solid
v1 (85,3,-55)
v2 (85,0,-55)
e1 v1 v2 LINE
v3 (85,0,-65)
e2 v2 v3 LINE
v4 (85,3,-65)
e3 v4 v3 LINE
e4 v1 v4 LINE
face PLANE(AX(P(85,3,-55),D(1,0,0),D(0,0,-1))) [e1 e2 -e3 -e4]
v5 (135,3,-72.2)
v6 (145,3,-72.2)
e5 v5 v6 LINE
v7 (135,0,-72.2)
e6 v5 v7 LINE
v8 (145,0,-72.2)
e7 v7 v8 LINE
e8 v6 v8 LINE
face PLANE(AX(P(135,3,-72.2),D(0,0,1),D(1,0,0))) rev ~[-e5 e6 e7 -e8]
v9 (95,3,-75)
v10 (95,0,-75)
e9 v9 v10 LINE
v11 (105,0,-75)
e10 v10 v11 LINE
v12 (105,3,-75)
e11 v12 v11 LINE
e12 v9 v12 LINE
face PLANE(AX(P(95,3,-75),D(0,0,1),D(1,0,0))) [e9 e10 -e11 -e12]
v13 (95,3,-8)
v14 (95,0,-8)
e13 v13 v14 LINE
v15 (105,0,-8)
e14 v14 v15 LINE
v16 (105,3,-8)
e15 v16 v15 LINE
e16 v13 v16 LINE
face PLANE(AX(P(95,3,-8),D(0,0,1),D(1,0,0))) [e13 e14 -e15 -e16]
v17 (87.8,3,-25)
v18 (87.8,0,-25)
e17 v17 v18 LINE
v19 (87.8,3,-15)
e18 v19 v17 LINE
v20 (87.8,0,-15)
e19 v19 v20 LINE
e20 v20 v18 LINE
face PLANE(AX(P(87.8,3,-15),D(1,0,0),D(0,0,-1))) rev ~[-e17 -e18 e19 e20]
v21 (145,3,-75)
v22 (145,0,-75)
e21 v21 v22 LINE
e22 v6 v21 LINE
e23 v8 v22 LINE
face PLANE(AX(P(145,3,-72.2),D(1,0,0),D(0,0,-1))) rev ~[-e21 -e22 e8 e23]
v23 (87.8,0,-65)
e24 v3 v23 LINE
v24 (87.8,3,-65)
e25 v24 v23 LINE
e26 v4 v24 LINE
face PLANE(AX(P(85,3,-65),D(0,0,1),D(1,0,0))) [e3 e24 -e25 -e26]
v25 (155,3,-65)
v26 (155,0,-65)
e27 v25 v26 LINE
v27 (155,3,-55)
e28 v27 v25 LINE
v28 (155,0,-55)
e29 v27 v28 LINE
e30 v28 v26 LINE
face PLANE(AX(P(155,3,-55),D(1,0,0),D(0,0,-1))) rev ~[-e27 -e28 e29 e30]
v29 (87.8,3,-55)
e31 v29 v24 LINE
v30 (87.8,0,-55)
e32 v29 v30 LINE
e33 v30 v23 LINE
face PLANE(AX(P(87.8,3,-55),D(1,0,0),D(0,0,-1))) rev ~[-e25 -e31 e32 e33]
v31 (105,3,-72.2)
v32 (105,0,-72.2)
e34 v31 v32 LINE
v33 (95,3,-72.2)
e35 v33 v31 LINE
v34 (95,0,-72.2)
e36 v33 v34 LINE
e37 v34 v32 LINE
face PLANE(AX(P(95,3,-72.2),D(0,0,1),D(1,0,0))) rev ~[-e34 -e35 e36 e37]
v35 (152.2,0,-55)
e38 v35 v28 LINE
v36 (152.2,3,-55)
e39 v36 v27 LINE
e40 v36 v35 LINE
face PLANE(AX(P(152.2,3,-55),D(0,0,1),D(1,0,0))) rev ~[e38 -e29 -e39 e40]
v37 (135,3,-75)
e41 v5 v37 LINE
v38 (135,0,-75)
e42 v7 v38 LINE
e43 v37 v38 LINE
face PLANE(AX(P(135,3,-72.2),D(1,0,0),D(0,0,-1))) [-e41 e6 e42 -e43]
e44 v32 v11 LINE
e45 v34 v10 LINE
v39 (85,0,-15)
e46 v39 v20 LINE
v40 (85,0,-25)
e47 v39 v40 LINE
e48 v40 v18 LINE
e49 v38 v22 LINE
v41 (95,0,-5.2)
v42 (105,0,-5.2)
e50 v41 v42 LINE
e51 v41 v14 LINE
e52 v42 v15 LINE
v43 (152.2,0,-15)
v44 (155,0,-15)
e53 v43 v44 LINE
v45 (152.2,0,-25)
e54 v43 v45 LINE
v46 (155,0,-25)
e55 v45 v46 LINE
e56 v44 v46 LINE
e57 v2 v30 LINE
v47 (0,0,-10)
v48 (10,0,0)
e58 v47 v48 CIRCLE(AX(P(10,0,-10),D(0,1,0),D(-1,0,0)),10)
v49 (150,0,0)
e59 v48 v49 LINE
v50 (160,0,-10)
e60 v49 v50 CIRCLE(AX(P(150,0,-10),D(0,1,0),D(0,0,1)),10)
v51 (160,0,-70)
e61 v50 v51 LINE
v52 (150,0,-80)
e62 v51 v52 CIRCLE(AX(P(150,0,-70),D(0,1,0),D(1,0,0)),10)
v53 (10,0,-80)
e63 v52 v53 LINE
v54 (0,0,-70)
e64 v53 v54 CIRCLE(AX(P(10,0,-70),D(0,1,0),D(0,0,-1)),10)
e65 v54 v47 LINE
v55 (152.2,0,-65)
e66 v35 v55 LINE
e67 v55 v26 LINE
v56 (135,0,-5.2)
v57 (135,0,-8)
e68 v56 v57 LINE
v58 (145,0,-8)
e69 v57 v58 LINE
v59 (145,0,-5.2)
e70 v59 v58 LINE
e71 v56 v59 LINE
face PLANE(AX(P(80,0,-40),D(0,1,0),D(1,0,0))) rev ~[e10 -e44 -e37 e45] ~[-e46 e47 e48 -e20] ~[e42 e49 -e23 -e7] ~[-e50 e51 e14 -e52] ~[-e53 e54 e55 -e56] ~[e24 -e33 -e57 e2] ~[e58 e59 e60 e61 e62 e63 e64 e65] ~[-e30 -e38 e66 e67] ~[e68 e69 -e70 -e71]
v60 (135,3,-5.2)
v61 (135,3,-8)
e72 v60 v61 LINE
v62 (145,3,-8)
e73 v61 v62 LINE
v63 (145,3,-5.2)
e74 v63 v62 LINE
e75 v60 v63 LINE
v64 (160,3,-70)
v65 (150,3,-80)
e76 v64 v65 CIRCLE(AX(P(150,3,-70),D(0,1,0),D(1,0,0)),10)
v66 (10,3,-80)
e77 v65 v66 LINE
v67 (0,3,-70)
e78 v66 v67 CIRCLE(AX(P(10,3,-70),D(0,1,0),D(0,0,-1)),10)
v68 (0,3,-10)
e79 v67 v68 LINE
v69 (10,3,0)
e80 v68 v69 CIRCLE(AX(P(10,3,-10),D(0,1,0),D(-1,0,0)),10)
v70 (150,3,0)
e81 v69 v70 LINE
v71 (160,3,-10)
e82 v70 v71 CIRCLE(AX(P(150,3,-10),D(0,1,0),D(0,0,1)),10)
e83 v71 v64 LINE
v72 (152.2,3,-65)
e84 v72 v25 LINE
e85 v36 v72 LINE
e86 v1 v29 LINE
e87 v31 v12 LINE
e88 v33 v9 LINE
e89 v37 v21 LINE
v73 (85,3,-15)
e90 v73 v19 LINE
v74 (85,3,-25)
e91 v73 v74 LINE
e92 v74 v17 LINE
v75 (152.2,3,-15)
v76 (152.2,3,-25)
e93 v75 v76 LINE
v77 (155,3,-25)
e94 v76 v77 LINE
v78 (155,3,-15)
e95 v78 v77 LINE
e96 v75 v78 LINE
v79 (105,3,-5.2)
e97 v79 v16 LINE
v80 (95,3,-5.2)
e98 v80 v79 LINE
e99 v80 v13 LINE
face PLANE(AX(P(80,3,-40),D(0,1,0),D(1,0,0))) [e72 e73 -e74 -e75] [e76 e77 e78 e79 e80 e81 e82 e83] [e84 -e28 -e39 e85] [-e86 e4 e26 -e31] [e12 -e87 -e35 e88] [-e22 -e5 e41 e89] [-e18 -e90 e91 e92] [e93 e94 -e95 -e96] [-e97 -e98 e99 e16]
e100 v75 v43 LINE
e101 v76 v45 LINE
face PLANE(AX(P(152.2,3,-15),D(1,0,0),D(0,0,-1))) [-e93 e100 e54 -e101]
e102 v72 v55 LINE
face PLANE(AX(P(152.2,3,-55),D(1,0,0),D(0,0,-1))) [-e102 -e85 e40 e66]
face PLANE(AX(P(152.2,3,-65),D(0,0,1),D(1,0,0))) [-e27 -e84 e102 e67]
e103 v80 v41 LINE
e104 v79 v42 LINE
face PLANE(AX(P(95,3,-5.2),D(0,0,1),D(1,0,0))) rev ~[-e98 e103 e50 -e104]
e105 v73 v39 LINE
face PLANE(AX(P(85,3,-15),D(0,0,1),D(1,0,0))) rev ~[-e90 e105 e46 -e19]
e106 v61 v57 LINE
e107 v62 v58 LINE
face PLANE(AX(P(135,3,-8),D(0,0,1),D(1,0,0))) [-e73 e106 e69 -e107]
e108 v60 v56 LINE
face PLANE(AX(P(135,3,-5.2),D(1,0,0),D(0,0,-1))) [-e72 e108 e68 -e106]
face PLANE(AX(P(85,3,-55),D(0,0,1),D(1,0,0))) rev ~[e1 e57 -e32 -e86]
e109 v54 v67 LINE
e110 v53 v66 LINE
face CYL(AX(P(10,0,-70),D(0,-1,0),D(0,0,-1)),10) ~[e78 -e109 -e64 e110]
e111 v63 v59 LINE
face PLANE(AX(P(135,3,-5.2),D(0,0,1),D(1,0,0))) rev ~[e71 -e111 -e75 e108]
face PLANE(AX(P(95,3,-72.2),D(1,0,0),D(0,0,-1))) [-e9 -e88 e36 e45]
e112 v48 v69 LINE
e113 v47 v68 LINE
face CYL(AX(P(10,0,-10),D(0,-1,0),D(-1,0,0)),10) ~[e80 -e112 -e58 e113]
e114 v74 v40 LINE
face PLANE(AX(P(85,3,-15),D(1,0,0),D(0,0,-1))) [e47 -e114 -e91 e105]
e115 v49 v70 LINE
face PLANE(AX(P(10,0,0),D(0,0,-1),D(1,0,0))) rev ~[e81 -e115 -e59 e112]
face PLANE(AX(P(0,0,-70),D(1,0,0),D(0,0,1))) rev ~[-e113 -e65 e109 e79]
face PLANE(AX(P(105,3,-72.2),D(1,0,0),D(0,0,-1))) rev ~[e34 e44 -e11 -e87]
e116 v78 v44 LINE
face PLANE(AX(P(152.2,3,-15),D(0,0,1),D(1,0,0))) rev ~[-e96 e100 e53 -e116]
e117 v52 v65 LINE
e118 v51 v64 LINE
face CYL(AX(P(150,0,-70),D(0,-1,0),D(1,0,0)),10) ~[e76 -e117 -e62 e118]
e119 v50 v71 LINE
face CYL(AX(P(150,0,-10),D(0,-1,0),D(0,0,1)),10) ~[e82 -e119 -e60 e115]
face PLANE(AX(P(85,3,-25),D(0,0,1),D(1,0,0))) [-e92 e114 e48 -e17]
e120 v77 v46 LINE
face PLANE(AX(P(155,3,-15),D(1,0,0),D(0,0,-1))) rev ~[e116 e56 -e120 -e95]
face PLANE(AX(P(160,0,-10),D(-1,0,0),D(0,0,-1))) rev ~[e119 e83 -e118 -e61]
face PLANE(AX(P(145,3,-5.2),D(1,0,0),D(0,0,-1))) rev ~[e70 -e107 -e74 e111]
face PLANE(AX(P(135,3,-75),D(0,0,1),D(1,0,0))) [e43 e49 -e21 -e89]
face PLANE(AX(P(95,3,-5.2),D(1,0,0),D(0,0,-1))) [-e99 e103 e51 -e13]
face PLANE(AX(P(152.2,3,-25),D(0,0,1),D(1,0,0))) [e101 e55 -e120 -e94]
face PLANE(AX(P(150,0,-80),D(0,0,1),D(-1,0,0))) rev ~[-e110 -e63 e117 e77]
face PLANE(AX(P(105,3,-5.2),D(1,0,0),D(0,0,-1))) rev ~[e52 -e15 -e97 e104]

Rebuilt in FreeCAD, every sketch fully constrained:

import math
import FreeCAD as App
import Part
import Sketcher
Q = App.Units.Quantity

doc = App.newDocument("Part")
body = doc.addObject("PartDesign::Body", "Body")

# Sketch on XZ plane
sketch1 = body.newObject("Sketcher::SketchObject", "Sketch")
sketch1.AttachmentSupport = (doc.getObject("XZ_Plane"), [""])
sketch1.MapMode = "FlatFace"
sketch1.addGeometry(Part.LineSegment(App.Vector(10, 0, 0), App.Vector(150, 0, 0)), False)
sketch1.addGeometry(Part.ArcOfCircle(Part.Circle(App.Vector(150, -10, 0), App.Vector(0, 0, 1), 10), math.radians(0), math.radians(90)), False)
sketch1.addGeometry(Part.LineSegment(App.Vector(160, -10, 0), App.Vector(160, -70, 0)), False)
sketch1.addGeometry(Part.ArcOfCircle(Part.Circle(App.Vector(150, -70, 0), App.Vector(0, 0, 1), 10), math.radians(-90), math.radians(0)), False)
sketch1.addGeometry(Part.LineSegment(App.Vector(150, -80, 0), App.Vector(10, -80, 0)), False)
sketch1.addGeometry(Part.ArcOfCircle(Part.Circle(App.Vector(10, -70, 0), App.Vector(0, 0, 1), 10), math.radians(180), math.radians(270)), False)
sketch1.addGeometry(Part.LineSegment(App.Vector(0, -70, 0), App.Vector(0, -10, 0)), False)
sketch1.addGeometry(Part.ArcOfCircle(Part.Circle(App.Vector(10, -10, 0), App.Vector(0, 0, 1), 10), math.radians(90), math.radians(180)), False)
sketch1.addConstraint(Sketcher.Constraint("Tangent", 0, 2, 1, 2))
sketch1.addConstraint(Sketcher.Constraint("Tangent", 1, 1, 2, 1))
sketch1.addConstraint(Sketcher.Constraint("Tangent", 2, 2, 3, 2))
sketch1.addConstraint(Sketcher.Constraint("Tangent", 3, 1, 4, 1))
sketch1.addConstraint(Sketcher.Constraint("Tangent", 4, 2, 5, 2))
sketch1.addConstraint(Sketcher.Constraint("Tangent", 5, 1, 6, 1))
sketch1.addConstraint(Sketcher.Constraint("Tangent", 6, 2, 7, 2))
sketch1.addConstraint(Sketcher.Constraint("Tangent", 7, 1, 0, 1))
sketch1.addConstraint(Sketcher.Constraint("Horizontal", 0))
sketch1.addConstraint(Sketcher.Constraint("Vertical", 2))
sketch1.addConstraint(Sketcher.Constraint("Horizontal", 4))
sketch1.addConstraint(Sketcher.Constraint("Vertical", 6))
sketch1.addConstraint(Sketcher.Constraint("Equal", 1, 3))
sketch1.addConstraint(Sketcher.Constraint("Equal", 3, 5))
sketch1.addConstraint(Sketcher.Constraint("Equal", 5, 7))
sketch1.addConstraint(Sketcher.Constraint("PointOnObject", 0, 2, -1))
sketch1.addConstraint(Sketcher.Constraint("PointOnObject", 5, 1, -2))
sketch1.addConstraint(Sketcher.Constraint("Radius", 1, Q("10 mm")))
sketch1.addConstraint(Sketcher.Constraint("DistanceX", 0, 1, 0, 2, Q("140 mm")))
sketch1.addConstraint(Sketcher.Constraint("DistanceY", 2, 2, 2, 1, Q("60 mm")))
pad1 = body.newObject("PartDesign::Pad", "Pad")
pad1.Profile = sketch1
pad1.Length = 3
pad1.Reversed = True

# Sketch on XZ plane
sketch2 = body.newObject("Sketcher::SketchObject", "Sketch001")
sketch2.AttachmentSupport = (doc.getObject("XZ_Plane"), [""])
sketch2.MapMode = "FlatFace"
sketch2.AttachmentOffset = App.Placement(App.Vector(0, 0, -3), App.Rotation())
sketch2.addGeometry(Part.LineSegment(App.Vector(135, -75, 0), App.Vector(135, -72.2, 0)), False)
sketch2.addGeometry(Part.LineSegment(App.Vector(135, -72.2, 0), App.Vector(145, -72.2, 0)), False)
sketch2.addGeometry(Part.LineSegment(App.Vector(145, -72.2, 0), App.Vector(145, -75, 0)), False)
sketch2.addGeometry(Part.LineSegment(App.Vector(145, -75, 0), App.Vector(135, -75, 0)), False)
sketch2.addGeometry(Part.LineSegment(App.Vector(95, -75, 0), App.Vector(95, -72.2, 0)), False)
sketch2.addGeometry(Part.LineSegment(App.Vector(95, -72.2, 0), App.Vector(105, -72.2, 0)), False)
sketch2.addGeometry(Part.LineSegment(App.Vector(105, -72.2, 0), App.Vector(105, -75, 0)), False)
sketch2.addGeometry(Part.LineSegment(App.Vector(105, -75, 0), App.Vector(95, -75, 0)), False)
sketch2.addGeometry(Part.LineSegment(App.Vector(95, -8, 0), App.Vector(95, -5.2, 0)), False)
sketch2.addGeometry(Part.LineSegment(App.Vector(95, -5.2, 0), App.Vector(105, -5.2, 0)), False)
sketch2.addGeometry(Part.LineSegment(App.Vector(105, -5.2, 0), App.Vector(105, -8, 0)), False)
sketch2.addGeometry(Part.LineSegment(App.Vector(105, -8, 0), App.Vector(95, -8, 0)), False)
sketch2.addGeometry(Part.LineSegment(App.Vector(135, -8, 0), App.Vector(135, -5.2, 0)), False)
sketch2.addGeometry(Part.LineSegment(App.Vector(135, -5.2, 0), App.Vector(145, -5.2, 0)), False)
sketch2.addGeometry(Part.LineSegment(App.Vector(145, -5.2, 0), App.Vector(145, -8, 0)), False)
sketch2.addGeometry(Part.LineSegment(App.Vector(145, -8, 0), App.Vector(135, -8, 0)), False)
sketch2.addConstraint(Sketcher.Constraint("Coincident", 0, 2, 1, 1))
sketch2.addConstraint(Sketcher.Constraint("Coincident", 1, 2, 2, 1))
sketch2.addConstraint(Sketcher.Constraint("Coincident", 2, 2, 3, 1))
sketch2.addConstraint(Sketcher.Constraint("Coincident", 3, 2, 0, 1))
sketch2.addConstraint(Sketcher.Constraint("Coincident", 4, 2, 5, 1))
sketch2.addConstraint(Sketcher.Constraint("Coincident", 5, 2, 6, 1))
sketch2.addConstraint(Sketcher.Constraint("Coincident", 6, 2, 7, 1))
sketch2.addConstraint(Sketcher.Constraint("Coincident", 7, 2, 4, 1))
sketch2.addConstraint(Sketcher.Constraint("Coincident", 8, 2, 9, 1))
sketch2.addConstraint(Sketcher.Constraint("Coincident", 9, 2, 10, 1))
sketch2.addConstraint(Sketcher.Constraint("Coincident", 10, 2, 11, 1))
sketch2.addConstraint(Sketcher.Constraint("Coincident", 11, 2, 8, 1))
sketch2.addConstraint(Sketcher.Constraint("Coincident", 12, 2, 13, 1))
sketch2.addConstraint(Sketcher.Constraint("Coincident", 13, 2, 14, 1))
sketch2.addConstraint(Sketcher.Constraint("Coincident", 14, 2, 15, 1))
sketch2.addConstraint(Sketcher.Constraint("Coincident", 15, 2, 12, 1))
sketch2.addConstraint(Sketcher.Constraint("Vertical", 0))
sketch2.addConstraint(Sketcher.Constraint("Horizontal", 1))
sketch2.addConstraint(Sketcher.Constraint("Vertical", 2))
sketch2.addConstraint(Sketcher.Constraint("Horizontal", 3))
sketch2.addConstraint(Sketcher.Constraint("Vertical", 4))
sketch2.addConstraint(Sketcher.Constraint("Horizontal", 5))
sketch2.addConstraint(Sketcher.Constraint("Vertical", 6))
sketch2.addConstraint(Sketcher.Constraint("Horizontal", 7))
sketch2.addConstraint(Sketcher.Constraint("Vertical", 8))
sketch2.addConstraint(Sketcher.Constraint("Horizontal", 9))
sketch2.addConstraint(Sketcher.Constraint("Vertical", 10))
sketch2.addConstraint(Sketcher.Constraint("Horizontal", 11))
sketch2.addConstraint(Sketcher.Constraint("Vertical", 12))
sketch2.addConstraint(Sketcher.Constraint("Horizontal", 13))
sketch2.addConstraint(Sketcher.Constraint("Vertical", 14))
sketch2.addConstraint(Sketcher.Constraint("Horizontal", 15))
sketch2.addConstraint(Sketcher.Constraint("Horizontal", 1, 2, 4, 2))
sketch2.addConstraint(Sketcher.Constraint("Horizontal", 3, 2, 6, 2))
sketch2.addConstraint(Sketcher.Constraint("Horizontal", 9, 2, 12, 2))
sketch2.addConstraint(Sketcher.Constraint("Horizontal", 11, 2, 14, 2))
sketch2.addConstraint(Sketcher.Constraint("Vertical", 7, 2, 8, 2))
sketch2.addConstraint(Sketcher.Constraint("Vertical", 6, 2, 9, 2))
sketch2.addConstraint(Sketcher.Constraint("Vertical", 3, 2, 12, 2))
sketch2.addConstraint(Sketcher.Constraint("Vertical", 2, 2, 13, 2))
sketch2.addConstraint(Sketcher.Constraint("Equal", 3, 5))
sketch2.addConstraint(Sketcher.Constraint("Equal", 6, 8))
sketch2.addConstraint(Sketcher.Constraint("DistanceX", 1, 1, 1, 2, Q("10 mm")))
sketch2.addConstraint(Sketcher.Constraint("DistanceY", 0, 1, 0, 2, Q("2.8 mm")))
sketch2.addConstraint(Sketcher.Constraint("DistanceX", -1, 1, 0, 2, Q("135 mm")))
sketch2.addConstraint(Sketcher.Constraint("DistanceY", 2, 2, -1, 1, Q("75 mm")))
sketch2.addConstraint(Sketcher.Constraint("DistanceX", -1, 1, 4, 2, Q("95 mm")))
sketch2.addConstraint(Sketcher.Constraint("DistanceY", 10, 2, -1, 1, Q("8 mm")))
pocket1 = body.newObject("PartDesign::Pocket", "Pocket")
pocket1.Profile = sketch2
pocket1.Type = "ThroughAll"
pocket1.Reversed = True

# Sketch on XZ plane
sketch3 = body.newObject("Sketcher::SketchObject", "Sketch002")
sketch3.AttachmentSupport = (doc.getObject("XZ_Plane"), [""])
sketch3.MapMode = "FlatFace"
sketch3.AttachmentOffset = App.Placement(App.Vector(0, 0, -3), App.Rotation())
sketch3.addGeometry(Part.LineSegment(App.Vector(152.2, -65, 0), App.Vector(152.2, -55, 0)), False)
sketch3.addGeometry(Part.LineSegment(App.Vector(152.2, -55, 0), App.Vector(155, -55, 0)), False)
sketch3.addGeometry(Part.LineSegment(App.Vector(155, -55, 0), App.Vector(155, -65, 0)), False)
sketch3.addGeometry(Part.LineSegment(App.Vector(155, -65, 0), App.Vector(152.2, -65, 0)), False)
sketch3.addGeometry(Part.LineSegment(App.Vector(85, -65, 0), App.Vector(85, -55, 0)), False)
sketch3.addGeometry(Part.LineSegment(App.Vector(85, -55, 0), App.Vector(87.8, -55, 0)), False)
sketch3.addGeometry(Part.LineSegment(App.Vector(87.8, -55, 0), App.Vector(87.8, -65, 0)), False)
sketch3.addGeometry(Part.LineSegment(App.Vector(87.8, -65, 0), App.Vector(85, -65, 0)), False)
sketch3.addGeometry(Part.LineSegment(App.Vector(85, -25, 0), App.Vector(85, -15, 0)), False)
sketch3.addGeometry(Part.LineSegment(App.Vector(85, -15, 0), App.Vector(87.8, -15, 0)), False)
sketch3.addGeometry(Part.LineSegment(App.Vector(87.8, -15, 0), App.Vector(87.8, -25, 0)), False)
sketch3.addGeometry(Part.LineSegment(App.Vector(87.8, -25, 0), App.Vector(85, -25, 0)), False)
sketch3.addGeometry(Part.LineSegment(App.Vector(152.2, -25, 0), App.Vector(152.2, -15, 0)), False)
sketch3.addGeometry(Part.LineSegment(App.Vector(152.2, -15, 0), App.Vector(155, -15, 0)), False)
sketch3.addGeometry(Part.LineSegment(App.Vector(155, -15, 0), App.Vector(155, -25, 0)), False)
sketch3.addGeometry(Part.LineSegment(App.Vector(155, -25, 0), App.Vector(152.2, -25, 0)), False)
sketch3.addConstraint(Sketcher.Constraint("Coincident", 0, 2, 1, 1))
sketch3.addConstraint(Sketcher.Constraint("Coincident", 1, 2, 2, 1))
sketch3.addConstraint(Sketcher.Constraint("Coincident", 2, 2, 3, 1))
sketch3.addConstraint(Sketcher.Constraint("Coincident", 3, 2, 0, 1))
sketch3.addConstraint(Sketcher.Constraint("Coincident", 4, 2, 5, 1))
sketch3.addConstraint(Sketcher.Constraint("Coincident", 5, 2, 6, 1))
sketch3.addConstraint(Sketcher.Constraint("Coincident", 6, 2, 7, 1))
sketch3.addConstraint(Sketcher.Constraint("Coincident", 7, 2, 4, 1))
sketch3.addConstraint(Sketcher.Constraint("Coincident", 8, 2, 9, 1))
sketch3.addConstraint(Sketcher.Constraint("Coincident", 9, 2, 10, 1))
sketch3.addConstraint(Sketcher.Constraint("Coincident", 10, 2, 11, 1))
sketch3.addConstraint(Sketcher.Constraint("Coincident", 11, 2, 8, 1))
sketch3.addConstraint(Sketcher.Constraint("Coincident", 12, 2, 13, 1))
sketch3.addConstraint(Sketcher.Constraint("Coincident", 13, 2, 14, 1))
sketch3.addConstraint(Sketcher.Constraint("Coincident", 14, 2, 15, 1))
sketch3.addConstraint(Sketcher.Constraint("Coincident", 15, 2, 12, 1))
sketch3.addConstraint(Sketcher.Constraint("Vertical", 0))
sketch3.addConstraint(Sketcher.Constraint("Horizontal", 1))
sketch3.addConstraint(Sketcher.Constraint("Vertical", 2))
sketch3.addConstraint(Sketcher.Constraint("Horizontal", 3))
sketch3.addConstraint(Sketcher.Constraint("Vertical", 4))
sketch3.addConstraint(Sketcher.Constraint("Horizontal", 5))
sketch3.addConstraint(Sketcher.Constraint("Vertical", 6))
sketch3.addConstraint(Sketcher.Constraint("Horizontal", 7))
sketch3.addConstraint(Sketcher.Constraint("Vertical", 8))
sketch3.addConstraint(Sketcher.Constraint("Horizontal", 9))
sketch3.addConstraint(Sketcher.Constraint("Vertical", 10))
sketch3.addConstraint(Sketcher.Constraint("Horizontal", 11))
sketch3.addConstraint(Sketcher.Constraint("Vertical", 12))
sketch3.addConstraint(Sketcher.Constraint("Horizontal", 13))
sketch3.addConstraint(Sketcher.Constraint("Vertical", 14))
sketch3.addConstraint(Sketcher.Constraint("Horizontal", 15))
sketch3.addConstraint(Sketcher.Constraint("Horizontal", 1, 2, 4, 2))
sketch3.addConstraint(Sketcher.Constraint("Horizontal", 3, 2, 6, 2))
sketch3.addConstraint(Sketcher.Constraint("Horizontal", 9, 2, 12, 2))
sketch3.addConstraint(Sketcher.Constraint("Horizontal", 11, 2, 14, 2))
sketch3.addConstraint(Sketcher.Constraint("Vertical", 7, 2, 8, 2))
sketch3.addConstraint(Sketcher.Constraint("Vertical", 6, 2, 9, 2))
sketch3.addConstraint(Sketcher.Constraint("Vertical", 3, 2, 12, 2))
sketch3.addConstraint(Sketcher.Constraint("Vertical", 2, 2, 13, 2))
sketch3.addConstraint(Sketcher.Constraint("Equal", 3, 5))
sketch3.addConstraint(Sketcher.Constraint("Equal", 6, 8))
sketch3.addConstraint(Sketcher.Constraint("DistanceY", 0, 1, 0, 2, Q("10 mm")))
sketch3.addConstraint(Sketcher.Constraint("DistanceX", 1, 1, 1, 2, Q("2.8 mm")))
sketch3.addConstraint(Sketcher.Constraint("DistanceY", 0, 2, -1, 1, Q("55 mm")))
sketch3.addConstraint(Sketcher.Constraint("DistanceX", -1, 1, 1, 2, Q("155 mm")))
sketch3.addConstraint(Sketcher.Constraint("DistanceX", -1, 1, 4, 2, Q("85 mm")))
sketch3.addConstraint(Sketcher.Constraint("DistanceY", 8, 2, -1, 1, Q("15 mm")))
pocket2 = body.newObject("PartDesign::Pocket", "Pocket001")
pocket2.Profile = sketch3
pocket2.Type = "ThroughAll"
pocket2.Reversed = True

doc.recompute()
